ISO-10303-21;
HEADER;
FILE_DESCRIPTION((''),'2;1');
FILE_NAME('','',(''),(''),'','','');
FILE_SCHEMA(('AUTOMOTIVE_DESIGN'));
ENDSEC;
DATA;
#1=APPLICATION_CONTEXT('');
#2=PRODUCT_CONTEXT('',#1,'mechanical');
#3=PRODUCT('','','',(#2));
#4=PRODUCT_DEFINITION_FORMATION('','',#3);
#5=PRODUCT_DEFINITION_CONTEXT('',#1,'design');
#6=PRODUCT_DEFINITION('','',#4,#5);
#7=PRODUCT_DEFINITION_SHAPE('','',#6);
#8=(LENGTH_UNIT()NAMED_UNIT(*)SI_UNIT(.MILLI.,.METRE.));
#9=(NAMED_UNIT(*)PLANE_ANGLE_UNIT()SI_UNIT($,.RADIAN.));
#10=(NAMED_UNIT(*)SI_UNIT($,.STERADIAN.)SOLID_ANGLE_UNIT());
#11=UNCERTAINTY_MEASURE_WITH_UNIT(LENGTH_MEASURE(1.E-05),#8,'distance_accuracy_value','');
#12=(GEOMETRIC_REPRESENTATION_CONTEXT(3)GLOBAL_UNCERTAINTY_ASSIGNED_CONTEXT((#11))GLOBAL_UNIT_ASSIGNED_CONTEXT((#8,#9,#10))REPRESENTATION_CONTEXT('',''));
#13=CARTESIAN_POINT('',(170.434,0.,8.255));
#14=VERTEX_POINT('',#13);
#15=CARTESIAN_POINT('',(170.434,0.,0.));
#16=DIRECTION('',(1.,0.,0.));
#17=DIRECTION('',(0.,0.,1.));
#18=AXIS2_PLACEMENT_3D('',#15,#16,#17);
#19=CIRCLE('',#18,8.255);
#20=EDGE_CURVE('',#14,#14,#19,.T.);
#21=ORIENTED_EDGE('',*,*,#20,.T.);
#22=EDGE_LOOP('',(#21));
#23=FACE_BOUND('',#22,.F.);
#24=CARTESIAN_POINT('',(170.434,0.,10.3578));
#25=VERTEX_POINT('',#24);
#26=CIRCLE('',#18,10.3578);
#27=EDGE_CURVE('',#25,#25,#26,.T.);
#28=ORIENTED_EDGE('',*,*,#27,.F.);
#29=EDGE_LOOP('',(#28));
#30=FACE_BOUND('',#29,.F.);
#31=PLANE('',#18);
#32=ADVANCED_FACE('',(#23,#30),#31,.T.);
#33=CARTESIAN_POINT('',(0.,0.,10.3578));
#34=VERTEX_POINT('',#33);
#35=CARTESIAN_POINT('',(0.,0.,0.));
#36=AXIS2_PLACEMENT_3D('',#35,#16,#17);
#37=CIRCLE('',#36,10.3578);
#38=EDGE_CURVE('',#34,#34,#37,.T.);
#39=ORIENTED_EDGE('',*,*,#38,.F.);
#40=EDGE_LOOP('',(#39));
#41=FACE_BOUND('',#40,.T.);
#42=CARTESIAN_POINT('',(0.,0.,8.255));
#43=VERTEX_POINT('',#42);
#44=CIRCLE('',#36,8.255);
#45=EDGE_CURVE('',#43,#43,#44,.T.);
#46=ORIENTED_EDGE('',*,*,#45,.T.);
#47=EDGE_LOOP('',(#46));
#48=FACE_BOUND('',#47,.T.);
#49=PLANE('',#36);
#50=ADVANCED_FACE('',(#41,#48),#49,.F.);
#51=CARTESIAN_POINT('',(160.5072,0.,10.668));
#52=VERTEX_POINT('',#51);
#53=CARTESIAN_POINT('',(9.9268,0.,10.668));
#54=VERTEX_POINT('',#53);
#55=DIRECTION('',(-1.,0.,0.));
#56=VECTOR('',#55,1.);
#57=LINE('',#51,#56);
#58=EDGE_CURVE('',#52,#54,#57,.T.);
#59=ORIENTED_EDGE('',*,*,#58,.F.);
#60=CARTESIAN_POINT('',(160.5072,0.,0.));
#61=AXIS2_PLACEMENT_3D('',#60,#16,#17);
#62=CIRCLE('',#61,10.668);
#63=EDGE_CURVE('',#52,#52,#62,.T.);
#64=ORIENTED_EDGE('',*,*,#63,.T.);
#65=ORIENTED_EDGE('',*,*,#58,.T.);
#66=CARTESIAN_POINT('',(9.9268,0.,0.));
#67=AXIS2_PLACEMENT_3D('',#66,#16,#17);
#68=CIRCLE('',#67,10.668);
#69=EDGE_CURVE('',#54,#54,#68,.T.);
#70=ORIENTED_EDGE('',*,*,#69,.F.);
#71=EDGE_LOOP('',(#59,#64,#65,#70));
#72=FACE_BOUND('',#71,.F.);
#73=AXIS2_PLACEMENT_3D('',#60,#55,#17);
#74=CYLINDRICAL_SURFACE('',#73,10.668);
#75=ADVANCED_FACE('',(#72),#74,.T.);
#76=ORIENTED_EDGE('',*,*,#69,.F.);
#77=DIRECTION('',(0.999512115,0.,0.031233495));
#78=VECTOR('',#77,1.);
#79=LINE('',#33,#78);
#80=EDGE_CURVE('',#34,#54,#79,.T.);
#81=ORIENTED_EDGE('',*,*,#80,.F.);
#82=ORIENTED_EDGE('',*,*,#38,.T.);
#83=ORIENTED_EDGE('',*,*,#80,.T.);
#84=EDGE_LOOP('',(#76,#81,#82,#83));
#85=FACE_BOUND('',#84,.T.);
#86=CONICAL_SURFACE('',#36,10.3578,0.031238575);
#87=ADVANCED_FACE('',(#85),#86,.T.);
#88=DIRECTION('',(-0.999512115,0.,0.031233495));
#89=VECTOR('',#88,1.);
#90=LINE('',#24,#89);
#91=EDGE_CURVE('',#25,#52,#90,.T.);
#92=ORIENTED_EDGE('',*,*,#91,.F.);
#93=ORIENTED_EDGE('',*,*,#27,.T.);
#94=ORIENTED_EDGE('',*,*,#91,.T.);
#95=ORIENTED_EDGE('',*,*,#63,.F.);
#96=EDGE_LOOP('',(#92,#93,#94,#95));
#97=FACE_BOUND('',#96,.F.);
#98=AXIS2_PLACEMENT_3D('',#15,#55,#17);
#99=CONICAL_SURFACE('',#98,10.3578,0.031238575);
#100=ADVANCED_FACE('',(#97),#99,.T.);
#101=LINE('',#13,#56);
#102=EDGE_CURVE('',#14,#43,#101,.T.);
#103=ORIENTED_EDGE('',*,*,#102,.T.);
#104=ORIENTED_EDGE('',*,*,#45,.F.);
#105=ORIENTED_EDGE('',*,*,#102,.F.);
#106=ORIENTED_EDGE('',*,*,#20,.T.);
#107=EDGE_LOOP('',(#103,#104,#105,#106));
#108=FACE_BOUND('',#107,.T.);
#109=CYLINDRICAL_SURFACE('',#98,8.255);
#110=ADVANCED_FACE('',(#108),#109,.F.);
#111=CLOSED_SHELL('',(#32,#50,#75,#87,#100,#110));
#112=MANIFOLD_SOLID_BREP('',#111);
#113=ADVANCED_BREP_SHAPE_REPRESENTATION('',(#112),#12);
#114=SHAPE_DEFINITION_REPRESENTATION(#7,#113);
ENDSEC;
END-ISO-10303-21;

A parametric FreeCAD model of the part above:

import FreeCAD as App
import Part
import Sketcher

V = App.Vector
Q = App.Units.Quantity

doc = App.newDocument("Part")
body = doc.addObject("PartDesign::Body", "Body")

# Sketch on XZ plane
sketch1 = body.newObject("Sketcher::SketchObject", "Sketch")
sketch1.AttachmentSupport = (doc.getObject("XZ_Plane"), [""])
sketch1.MapMode = "FlatFace"
sketch1.addGeometry([
    Part.LineSegment(V(170.4, 10.4, 0), V(170.4, 8.3, 0)),  # 0
    Part.LineSegment(V(170.4, 8.3, 0), V(0, 8.3, 0)),  # 1
    Part.LineSegment(V(0, 8.3, 0), V(0, 10.4, 0)),  # 2
    Part.LineSegment(V(0, 10.4, 0), V(9.9, 10.7, 0)),  # 3
    Part.LineSegment(V(9.9, 10.7, 0), V(160.5, 10.7, 0)),  # 4
    Part.LineSegment(V(160.5, 10.7, 0), V(170.4, 10.4, 0)),  # 5
], False)
sketch1.addConstraint([
    Sketcher.Constraint("Coincident", 0, 2, 1, 1),
    Sketcher.Constraint("Coincident", 1, 2, 2, 1),
    Sketcher.Constraint("Coincident", 2, 2, 3, 1),
    Sketcher.Constraint("Coincident", 3, 2, 4, 1),
    Sketcher.Constraint("Coincident", 4, 2, 5, 1),
    Sketcher.Constraint("Coincident", 5, 2, 0, 1),
    Sketcher.Constraint("Vertical", 0),
    Sketcher.Constraint("Horizontal", 1),
    Sketcher.Constraint("Vertical", 2),
    Sketcher.Constraint("Horizontal", 4),
    Sketcher.Constraint("PointOnObject", 1, 2, -2),
    Sketcher.Constraint("Horizontal", 2, 2, 5, 2),
    Sketcher.Constraint("Equal", 3, 5),
    Sketcher.Constraint("DistanceX", 1, 2, 1, 1, Q("6.71 in")),
    Sketcher.Constraint("Angle", 3, Q("1.7898 deg")),
    Sketcher.Constraint("DistanceY", -1, 1, 3, 2, Q("0.42 in")),
    Sketcher.Constraint("Distance", 3, Q("0.391 in")),
    Sketcher.Constraint("DistanceY", -1, 1, 0, 2, Q("0.325 in")),
])
revolution = body.newObject("PartDesign::Revolution", "Revolution")
revolution.Profile = sketch1
revolution.ReferenceAxis = (sketch1, ["H_Axis"])
revolution.Angle = 360

doc.recompute()
